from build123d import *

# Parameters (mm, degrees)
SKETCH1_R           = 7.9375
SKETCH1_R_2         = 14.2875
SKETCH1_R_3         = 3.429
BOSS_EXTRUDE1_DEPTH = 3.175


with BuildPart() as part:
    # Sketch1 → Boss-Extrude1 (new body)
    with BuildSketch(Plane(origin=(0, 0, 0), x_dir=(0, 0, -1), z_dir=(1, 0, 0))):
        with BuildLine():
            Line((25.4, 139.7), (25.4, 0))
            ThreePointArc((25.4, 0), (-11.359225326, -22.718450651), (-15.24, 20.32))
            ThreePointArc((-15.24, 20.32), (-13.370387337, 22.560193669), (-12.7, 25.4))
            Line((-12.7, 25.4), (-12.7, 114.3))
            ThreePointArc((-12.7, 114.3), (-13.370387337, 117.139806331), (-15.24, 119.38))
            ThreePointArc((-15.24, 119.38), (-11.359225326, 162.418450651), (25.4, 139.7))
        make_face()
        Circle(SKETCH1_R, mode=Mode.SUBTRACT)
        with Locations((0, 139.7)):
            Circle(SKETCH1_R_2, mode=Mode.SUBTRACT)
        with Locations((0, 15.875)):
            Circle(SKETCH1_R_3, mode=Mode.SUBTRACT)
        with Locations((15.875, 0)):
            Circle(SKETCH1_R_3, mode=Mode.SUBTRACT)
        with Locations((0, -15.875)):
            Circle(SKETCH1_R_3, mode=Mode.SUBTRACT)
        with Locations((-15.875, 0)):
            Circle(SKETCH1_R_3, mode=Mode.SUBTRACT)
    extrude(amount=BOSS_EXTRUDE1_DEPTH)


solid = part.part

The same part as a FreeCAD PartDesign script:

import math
import FreeCAD as App
import Part
import Sketcher
from FreeCAD import Vector
Q = App.Units.Quantity

doc = App.newDocument("Part")
body = doc.addObject("PartDesign::Body", "Body")

sketch1 = body.newObject("Sketcher::SketchObject", "Sketch")
sketch1.AttachmentSupport = (doc.getObject("YZ_Plane"), [""])
sketch1.MapMode = "FlatFace"
sketch1.addGeometry(Part.LineSegment(Vector(0, -25.4, 0), Vector(139.7, -25.4, 0)), False)
sketch1.addGeometry(Part.ArcOfCircle(Part.Circle(Vector(139.7, 0, 0), Vector(0, 0, 1), 25.4), math.radians(-90), math.radians(143)), False)
sketch1.addGeometry(Part.ArcOfCircle(Part.Circle(Vector(114.3, 19.1, 0), Vector(0, 0, 1), 6.3), math.radians(-90), math.radians(-37)), False)
sketch1.addGeometry(Part.LineSegment(Vector(114.3, 12.7, 0), Vector(25.4, 12.7, 0)), False)
sketch1.addGeometry(Part.ArcOfCircle(Part.Circle(Vector(25.4, 19.1, 0), Vector(0, 0, 1), 6.3), math.radians(-143), math.radians(-90)), False)
sketch1.addGeometry(Part.ArcOfCircle(Part.Circle(Vector(0, 0, 0), Vector(0, 0, 1), 25.4), math.radians(37), math.radians(270)), False)
sketch1.addGeometry(Part.Circle(Vector(0, -15.9, 0), Vector(0, 0, 1), 3.4), False)
sketch1.addGeometry(Part.Circle(Vector(-15.9, 0, 0), Vector(0, 0, 1), 3.4), False)
sketch1.addGeometry(Part.Circle(Vector(0, 0, 0), Vector(0, 0, 1), 7.9), False)
sketch1.addGeometry(Part.Circle(Vector(15.9, 0, 0), Vector(0, 0, 1), 3.4), False)
sketch1.addGeometry(Part.Circle(Vector(0, 15.9, 0), Vector(0, 0, 1), 3.4), False)
sketch1.addGeometry(Part.Circle(Vector(139.7, 0, 0), Vector(0, 0, 1), 14.3), False)
sketch1.addConstraint(Sketcher.Constraint("Tangent", 0, 2, 1, 1))
sketch1.addConstraint(Sketcher.Constraint("Tangent", 1, 2, 2, 2))
sketch1.addConstraint(Sketcher.Constraint("Tangent", 2, 1, 3, 1))
sketch1.addConstraint(Sketcher.Constraint("Tangent", 3, 2, 4, 2))
sketch1.addConstraint(Sketcher.Constraint("Tangent", 4, 1, 5, 1))
sketch1.addConstraint(Sketcher.Constraint("Tangent", 5, 2, 0, 1))
sketch1.addConstraint(Sketcher.Constraint("Horizontal", 0))
sketch1.addConstraint(Sketcher.Constraint("Horizontal", 3))
sketch1.addConstraint(Sketcher.Constraint("Coincident", 5, 3, -1, 1))
sketch1.addConstraint(Sketcher.Constraint("Coincident", 8, 3, -1, 1))
sketch1.addConstraint(Sketcher.Constraint("Coincident", 11, 3, 1, 3))
sketch1.addConstraint(Sketcher.Constraint("Equal", 2, 4))
sketch1.addConstraint(Sketcher.Constraint("Equal", 1, 5))
sketch1.addConstraint(Sketcher.Constraint("Equal", 6, 7))
sketch1.addConstraint(Sketcher.Constraint("Equal", 7, 9))
sketch1.addConstraint(Sketcher.Constraint("Equal", 9, 10))
sketch1.addConstraint(Sketcher.Constraint("Symmetric", 7, 3, 9, 3, -1, 1))
sketch1.addConstraint(Sketcher.Constraint("Symmetric", 6, 3, 10, 3, -1, 1))
sketch1.addConstraint(Sketcher.Constraint("PointOnObject", 6, 3, -2))
sketch1.addConstraint(Sketcher.Constraint("PointOnObject", 7, 3, -1))
sketch1.addConstraint(Sketcher.Constraint("Radius", 1, Q("1 in")))
sketch1.addConstraint(Sketcher.Constraint("Diameter", 6, Q("0.27 in")))
sketch1.addConstraint(Sketcher.Constraint("Radius", 2, Q("0.25 in")))
sketch1.addConstraint(Sketcher.Constraint("Diameter", 8, Q("0.625 in")))
sketch1.addConstraint(Sketcher.Constraint("Diameter", 11, Q("1.125 in")))
sketch1.addConstraint(Sketcher.Constraint("DistanceX", 0, 1, 0, 2, Q("5.5 in")))
sketch1.addConstraint(Sketcher.Constraint("DistanceX", 3, 2, 3, 1, Q("3.5 in")))
sketch1.addConstraint(Sketcher.Constraint("DistanceX", 7, 3, 9, 3, Q("1.25 in")))
sketch1.addConstraint(Sketcher.Constraint("DistanceY", 6, 3, -1, 1, Q("0.625 in")))
pad1 = body.newObject("PartDesign::Pad", "Pad")
pad1.Profile = sketch1
pad1.Length = Q("0.125 in")

doc.recompute()
